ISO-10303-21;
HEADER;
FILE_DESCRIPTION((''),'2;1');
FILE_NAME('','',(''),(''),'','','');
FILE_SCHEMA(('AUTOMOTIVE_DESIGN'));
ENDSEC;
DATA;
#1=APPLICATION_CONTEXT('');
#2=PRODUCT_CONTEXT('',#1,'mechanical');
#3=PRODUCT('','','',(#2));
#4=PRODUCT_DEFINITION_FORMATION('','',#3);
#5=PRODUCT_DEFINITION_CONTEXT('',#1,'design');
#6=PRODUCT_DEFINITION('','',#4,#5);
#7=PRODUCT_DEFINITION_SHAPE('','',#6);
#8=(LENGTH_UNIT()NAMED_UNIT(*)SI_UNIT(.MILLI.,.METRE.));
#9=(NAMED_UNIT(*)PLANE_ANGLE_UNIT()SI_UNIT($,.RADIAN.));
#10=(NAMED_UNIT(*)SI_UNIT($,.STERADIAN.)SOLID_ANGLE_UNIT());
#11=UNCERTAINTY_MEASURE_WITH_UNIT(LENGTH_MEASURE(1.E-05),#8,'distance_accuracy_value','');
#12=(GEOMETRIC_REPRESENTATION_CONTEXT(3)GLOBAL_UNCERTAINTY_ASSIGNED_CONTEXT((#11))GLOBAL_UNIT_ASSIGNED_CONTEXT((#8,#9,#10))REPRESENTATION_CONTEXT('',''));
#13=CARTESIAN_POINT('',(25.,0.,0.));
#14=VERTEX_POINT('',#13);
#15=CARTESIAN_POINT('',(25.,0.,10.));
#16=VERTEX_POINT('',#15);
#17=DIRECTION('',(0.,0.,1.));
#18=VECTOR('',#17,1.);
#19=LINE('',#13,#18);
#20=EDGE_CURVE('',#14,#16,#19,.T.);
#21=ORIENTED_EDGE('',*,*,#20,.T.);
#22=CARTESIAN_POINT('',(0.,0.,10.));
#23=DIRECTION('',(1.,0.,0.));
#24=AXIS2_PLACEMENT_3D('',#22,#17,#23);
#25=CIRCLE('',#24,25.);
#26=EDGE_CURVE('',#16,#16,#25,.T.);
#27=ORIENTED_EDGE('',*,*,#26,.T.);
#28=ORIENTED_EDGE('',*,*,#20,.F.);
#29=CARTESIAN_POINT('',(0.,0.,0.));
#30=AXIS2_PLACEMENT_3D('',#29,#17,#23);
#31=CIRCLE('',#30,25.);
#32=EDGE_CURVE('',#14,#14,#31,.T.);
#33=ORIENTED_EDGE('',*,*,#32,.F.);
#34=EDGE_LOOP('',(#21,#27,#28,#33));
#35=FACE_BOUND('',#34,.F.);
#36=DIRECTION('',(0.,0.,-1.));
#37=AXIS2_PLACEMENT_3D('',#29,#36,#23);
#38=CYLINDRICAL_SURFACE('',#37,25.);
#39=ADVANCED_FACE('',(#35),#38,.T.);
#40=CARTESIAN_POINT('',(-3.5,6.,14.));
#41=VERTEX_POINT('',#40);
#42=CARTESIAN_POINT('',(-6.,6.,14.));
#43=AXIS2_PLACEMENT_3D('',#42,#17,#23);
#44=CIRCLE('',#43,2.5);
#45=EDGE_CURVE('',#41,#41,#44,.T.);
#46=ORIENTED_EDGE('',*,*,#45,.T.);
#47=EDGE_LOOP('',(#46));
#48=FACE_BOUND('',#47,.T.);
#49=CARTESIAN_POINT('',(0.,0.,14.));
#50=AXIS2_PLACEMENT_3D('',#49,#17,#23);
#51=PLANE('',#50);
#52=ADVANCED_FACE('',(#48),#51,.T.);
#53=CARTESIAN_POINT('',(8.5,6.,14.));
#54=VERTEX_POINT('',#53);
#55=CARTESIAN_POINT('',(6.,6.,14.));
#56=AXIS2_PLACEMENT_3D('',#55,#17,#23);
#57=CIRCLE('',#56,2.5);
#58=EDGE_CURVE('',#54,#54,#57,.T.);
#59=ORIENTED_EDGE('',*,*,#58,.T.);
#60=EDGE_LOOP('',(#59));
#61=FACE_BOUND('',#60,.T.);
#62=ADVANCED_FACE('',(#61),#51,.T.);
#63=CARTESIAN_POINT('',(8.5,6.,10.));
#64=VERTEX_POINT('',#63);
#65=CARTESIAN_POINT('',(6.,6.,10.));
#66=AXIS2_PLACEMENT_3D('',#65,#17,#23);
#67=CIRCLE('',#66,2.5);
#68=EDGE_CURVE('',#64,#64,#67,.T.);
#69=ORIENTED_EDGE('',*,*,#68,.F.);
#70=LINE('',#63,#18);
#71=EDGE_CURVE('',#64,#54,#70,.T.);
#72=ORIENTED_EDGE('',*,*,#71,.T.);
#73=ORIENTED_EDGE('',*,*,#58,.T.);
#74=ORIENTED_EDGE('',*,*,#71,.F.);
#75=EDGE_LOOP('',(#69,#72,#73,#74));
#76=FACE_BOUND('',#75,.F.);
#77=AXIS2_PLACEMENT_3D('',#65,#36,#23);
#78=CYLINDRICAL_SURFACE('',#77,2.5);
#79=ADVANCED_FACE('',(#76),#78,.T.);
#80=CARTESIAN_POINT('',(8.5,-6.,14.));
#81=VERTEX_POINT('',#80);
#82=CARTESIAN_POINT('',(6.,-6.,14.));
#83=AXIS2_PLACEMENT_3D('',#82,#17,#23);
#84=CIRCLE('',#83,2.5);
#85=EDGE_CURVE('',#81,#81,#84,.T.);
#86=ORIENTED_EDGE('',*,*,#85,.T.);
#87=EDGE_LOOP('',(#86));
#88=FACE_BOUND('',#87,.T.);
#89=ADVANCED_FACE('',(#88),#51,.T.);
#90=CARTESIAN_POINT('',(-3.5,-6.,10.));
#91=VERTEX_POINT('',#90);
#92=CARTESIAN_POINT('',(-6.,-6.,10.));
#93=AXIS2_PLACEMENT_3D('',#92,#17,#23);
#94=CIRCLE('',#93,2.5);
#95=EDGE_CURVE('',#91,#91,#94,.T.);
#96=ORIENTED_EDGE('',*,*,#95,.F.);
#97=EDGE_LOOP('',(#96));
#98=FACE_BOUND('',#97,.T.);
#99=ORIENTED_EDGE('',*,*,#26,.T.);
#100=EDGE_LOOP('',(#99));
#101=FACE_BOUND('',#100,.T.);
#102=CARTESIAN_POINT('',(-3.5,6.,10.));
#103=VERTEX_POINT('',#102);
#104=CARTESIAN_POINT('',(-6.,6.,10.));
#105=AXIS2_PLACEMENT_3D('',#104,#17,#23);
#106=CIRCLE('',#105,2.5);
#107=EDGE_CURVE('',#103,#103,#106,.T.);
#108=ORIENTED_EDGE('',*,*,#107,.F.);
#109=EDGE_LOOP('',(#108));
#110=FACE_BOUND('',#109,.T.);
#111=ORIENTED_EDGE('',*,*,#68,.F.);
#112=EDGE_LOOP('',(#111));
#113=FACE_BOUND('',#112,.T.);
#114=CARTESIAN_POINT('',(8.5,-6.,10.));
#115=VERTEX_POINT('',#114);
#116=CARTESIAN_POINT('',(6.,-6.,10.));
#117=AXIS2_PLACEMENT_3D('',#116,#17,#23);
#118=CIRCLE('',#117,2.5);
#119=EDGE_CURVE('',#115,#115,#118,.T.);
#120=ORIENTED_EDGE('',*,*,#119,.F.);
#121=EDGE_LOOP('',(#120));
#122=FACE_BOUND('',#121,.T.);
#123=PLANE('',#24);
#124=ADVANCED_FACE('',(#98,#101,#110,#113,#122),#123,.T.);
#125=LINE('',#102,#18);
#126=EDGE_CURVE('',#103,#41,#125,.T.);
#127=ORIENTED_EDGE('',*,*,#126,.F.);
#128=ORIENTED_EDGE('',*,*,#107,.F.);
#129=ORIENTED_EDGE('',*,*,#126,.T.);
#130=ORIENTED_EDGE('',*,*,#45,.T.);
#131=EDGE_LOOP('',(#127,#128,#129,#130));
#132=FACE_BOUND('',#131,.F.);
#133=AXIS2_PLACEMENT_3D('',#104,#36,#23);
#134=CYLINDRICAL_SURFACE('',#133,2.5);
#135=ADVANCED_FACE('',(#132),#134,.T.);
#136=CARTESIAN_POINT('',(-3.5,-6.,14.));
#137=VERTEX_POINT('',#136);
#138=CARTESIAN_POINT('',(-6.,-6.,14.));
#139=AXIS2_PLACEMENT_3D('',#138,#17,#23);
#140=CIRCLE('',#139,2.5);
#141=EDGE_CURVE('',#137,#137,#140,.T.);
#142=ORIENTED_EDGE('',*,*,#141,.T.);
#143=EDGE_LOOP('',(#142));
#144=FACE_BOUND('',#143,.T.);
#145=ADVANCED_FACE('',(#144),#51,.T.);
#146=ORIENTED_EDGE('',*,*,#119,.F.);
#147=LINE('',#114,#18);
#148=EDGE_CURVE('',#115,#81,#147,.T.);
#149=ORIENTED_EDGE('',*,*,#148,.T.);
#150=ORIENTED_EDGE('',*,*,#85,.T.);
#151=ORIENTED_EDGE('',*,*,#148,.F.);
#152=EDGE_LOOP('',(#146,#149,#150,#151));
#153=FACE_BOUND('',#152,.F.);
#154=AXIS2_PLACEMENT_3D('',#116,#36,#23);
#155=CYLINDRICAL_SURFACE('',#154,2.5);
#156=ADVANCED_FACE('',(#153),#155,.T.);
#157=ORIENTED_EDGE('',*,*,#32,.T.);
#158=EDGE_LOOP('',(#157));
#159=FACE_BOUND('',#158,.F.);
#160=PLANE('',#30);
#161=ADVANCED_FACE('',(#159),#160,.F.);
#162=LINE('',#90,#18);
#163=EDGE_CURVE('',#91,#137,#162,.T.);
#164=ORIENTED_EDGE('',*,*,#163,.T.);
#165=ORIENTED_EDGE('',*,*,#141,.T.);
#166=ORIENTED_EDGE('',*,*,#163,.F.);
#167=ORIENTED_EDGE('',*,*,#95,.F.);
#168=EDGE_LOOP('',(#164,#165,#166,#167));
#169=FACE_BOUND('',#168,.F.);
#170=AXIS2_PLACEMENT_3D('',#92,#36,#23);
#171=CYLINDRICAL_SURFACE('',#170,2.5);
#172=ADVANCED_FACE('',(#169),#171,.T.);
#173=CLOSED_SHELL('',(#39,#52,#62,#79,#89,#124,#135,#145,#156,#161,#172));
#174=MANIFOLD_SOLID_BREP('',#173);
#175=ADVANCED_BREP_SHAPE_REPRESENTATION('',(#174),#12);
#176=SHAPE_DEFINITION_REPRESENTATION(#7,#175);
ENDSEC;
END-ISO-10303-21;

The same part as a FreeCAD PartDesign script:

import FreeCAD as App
import Part
import Sketcher
from FreeCAD import Vector

doc = App.newDocument("Part")
body = doc.addObject("PartDesign::Body", "Body")

# Sketch on XY plane
sketch1 = body.newObject("Sketcher::SketchObject", "Sketch")
sketch1.AttachmentSupport = (doc.getObject("XY_Plane"), [""])
sketch1.MapMode = "FlatFace"
sketch1.addGeometry(Part.Circle(Vector(0, 0, 0), Vector(0, 0, 1), 25), False)
sketch1.addConstraint(Sketcher.Constraint("Coincident", 0, 3, -1, 1))
sketch1.addConstraint(Sketcher.Constraint("Diameter", 0, 50.0))
pad1 = body.newObject("PartDesign::Pad", "Pad")
pad1.Profile = sketch1
pad1.Length = 10

# Sketch on XY plane
sketch2 = body.newObject("Sketcher::SketchObject", "Sketch001")
sketch2.AttachmentSupport = (doc.getObject("XY_Plane"), [""])
sketch2.MapMode = "FlatFace"
sketch2.AttachmentOffset = App.Placement(Vector(0, 0, 10), App.Rotation())
sketch2.addGeometry(Part.Circle(Vector(-6, -6, 0), Vector(0, 0, 1), 2.5), False)
sketch2.addGeometry(Part.Circle(Vector(6, -6, 0), Vector(0, 0, 1), 2.5), False)
sketch2.addGeometry(Part.Circle(Vector(6, 6, 0), Vector(0, 0, 1), 2.5), False)
sketch2.addGeometry(Part.Circle(Vector(-6, 6, 0), Vector(0, 0, 1), 2.5), False)
sketch2.addConstraint(Sketcher.Constraint("Equal", 0, 1))
sketch2.addConstraint(Sketcher.Constraint("Equal", 1, 2))
sketch2.addConstraint(Sketcher.Constraint("Equal", 2, 3))
sketch2.addConstraint(Sketcher.Constraint("Symmetric", 0, 3, 2, 3, -1, 1))
sketch2.addConstraint(Sketcher.Constraint("Symmetric", 1, 3, 3, 3, -1, 1))
sketch2.addConstraint(Sketcher.Constraint("Symmetric", 0, 3, 1, 3, -2))
sketch2.addConstraint(Sketcher.Constraint("Diameter", 0, 5.0))
sketch2.addConstraint(Sketcher.Constraint("DistanceX", 0, 3, -1, 1, 6.0))
sketch2.addConstraint(Sketcher.Constraint("DistanceY", 0, 3, -1, 1, 6.0))
pad2 = body.newObject("PartDesign::Pad", "Pad001")
pad2.Profile = sketch2
pad2.Length = 4

doc.recompute()
